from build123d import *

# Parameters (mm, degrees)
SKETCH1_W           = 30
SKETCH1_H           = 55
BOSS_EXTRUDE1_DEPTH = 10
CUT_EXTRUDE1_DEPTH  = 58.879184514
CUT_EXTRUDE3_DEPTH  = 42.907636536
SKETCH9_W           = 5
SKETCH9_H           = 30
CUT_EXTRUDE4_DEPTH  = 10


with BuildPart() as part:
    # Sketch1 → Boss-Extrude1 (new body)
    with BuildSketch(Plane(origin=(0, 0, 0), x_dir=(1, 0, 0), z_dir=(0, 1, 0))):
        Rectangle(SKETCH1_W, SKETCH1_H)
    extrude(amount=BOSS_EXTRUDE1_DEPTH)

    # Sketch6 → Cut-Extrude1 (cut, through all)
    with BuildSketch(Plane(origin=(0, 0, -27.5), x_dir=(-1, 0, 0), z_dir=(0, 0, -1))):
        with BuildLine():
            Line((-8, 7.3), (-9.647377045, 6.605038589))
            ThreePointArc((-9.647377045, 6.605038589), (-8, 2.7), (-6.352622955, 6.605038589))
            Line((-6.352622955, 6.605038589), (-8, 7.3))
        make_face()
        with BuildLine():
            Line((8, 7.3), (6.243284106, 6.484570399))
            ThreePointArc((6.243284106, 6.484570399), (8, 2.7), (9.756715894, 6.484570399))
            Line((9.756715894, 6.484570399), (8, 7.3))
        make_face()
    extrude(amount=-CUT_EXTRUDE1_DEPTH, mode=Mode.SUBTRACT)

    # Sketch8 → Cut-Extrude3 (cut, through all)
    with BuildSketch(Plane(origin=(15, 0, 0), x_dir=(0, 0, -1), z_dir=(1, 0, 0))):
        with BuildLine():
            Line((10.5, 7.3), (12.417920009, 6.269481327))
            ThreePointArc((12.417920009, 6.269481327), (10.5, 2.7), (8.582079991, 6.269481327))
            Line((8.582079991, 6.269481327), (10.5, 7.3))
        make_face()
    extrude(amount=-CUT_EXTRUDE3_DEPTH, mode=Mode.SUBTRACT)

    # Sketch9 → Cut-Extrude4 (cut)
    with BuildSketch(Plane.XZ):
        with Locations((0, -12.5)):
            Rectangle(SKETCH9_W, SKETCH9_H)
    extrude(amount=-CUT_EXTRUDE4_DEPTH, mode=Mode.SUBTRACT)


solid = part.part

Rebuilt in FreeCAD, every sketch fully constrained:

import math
import FreeCAD as App
import Part
import Sketcher

V = App.Vector
Q = App.Units.Quantity


def add_polygon(sketch, points):
    """Adds a closed chain of lines whose ends are joined by coincident constraints."""
    first, n = sketch.GeometryCount, len(points)
    for a, b in zip(points, points[1:] + points[:1]):
        sketch.addGeometry(Part.LineSegment(App.Vector(*a, 0), App.Vector(*b, 0)), False)
    for i in range(n):
        sketch.addConstraint(Sketcher.Constraint("Coincident", first + i, 2, first + (i + 1) % n, 1))

doc = App.newDocument("Part")
body = doc.addObject("PartDesign::Body", "Body")

# Sketch on XZ plane
sketch1 = body.newObject("Sketcher::SketchObject", "Sketch")
sketch1.AttachmentSupport = (doc.getObject("XZ_Plane"), [""])
sketch1.MapMode = "FlatFace"
add_polygon(sketch1, [(-15, -27.5), (-15, 27.5), (15, 27.5), (15, -27.5)])  # lines 0-3
sketch1.addConstraint(Sketcher.Constraint("Vertical", 0))
sketch1.addConstraint(Sketcher.Constraint("Horizontal", 1))
sketch1.addConstraint(Sketcher.Constraint("Vertical", 2))
sketch1.addConstraint(Sketcher.Constraint("Horizontal", 3))
sketch1.addConstraint(Sketcher.Constraint("Symmetric", 0, 2, 2, 2, -1, 1))
sketch1.addConstraint(Sketcher.Constraint("DistanceX", 1, 1, 1, 2, Q("30 mm")))
sketch1.addConstraint(Sketcher.Constraint("DistanceY", 0, 1, 0, 2, Q("55 mm")))
pad1 = body.newObject("PartDesign::Pad", "Pad")
pad1.Profile = sketch1
pad1.Length = 10
pad1.Reversed = True

# Sketch on XY plane
sketch2 = body.newObject("Sketcher::SketchObject", "Sketch001")
sketch2.AttachmentSupport = (doc.getObject("XY_Plane"), [""])
sketch2.MapMode = "FlatFace"
sketch2.AttachmentOffset = App.Placement(V(0, 0, -27.5), App.Rotation())
sketch2.addGeometry(Part.LineSegment(V(8, 7.3, 0), V(9.647377, 6.605039, 0)), False)
sketch2.addGeometry(Part.ArcOfCircle(Part.Circle(V(8, 5, 0), V(0, 0, 1), 2.3), math.radians(135.745808), math.radians(404.254192)), False)
sketch2.addGeometry(Part.LineSegment(V(6.352623, 6.605039, 0), V(8, 7.3, 0)), False)
sketch2.addGeometry(Part.LineSegment(V(-8, 7.3, 0), V(-6.243284, 6.48457, 0)), False)
sketch2.addGeometry(Part.ArcOfCircle(Part.Circle(V(-8, 5, 0), V(0, 0, 1), 2.3), math.radians(139.799422), math.radians(400.200578)), False)
sketch2.addGeometry(Part.LineSegment(V(-9.756716, 6.48457, 0), V(-8, 7.3, 0)), False)
sketch2.addConstraint(Sketcher.Constraint("Coincident", 0, 2, 1, 2))
sketch2.addConstraint(Sketcher.Constraint("Coincident", 1, 1, 2, 1))
sketch2.addConstraint(Sketcher.Constraint("Coincident", 2, 2, 0, 1))
sketch2.addConstraint(Sketcher.Constraint("Coincident", 3, 2, 4, 2))
sketch2.addConstraint(Sketcher.Constraint("Coincident", 4, 1, 5, 1))
sketch2.addConstraint(Sketcher.Constraint("Coincident", 5, 2, 3, 1))
sketch2.addConstraint(Sketcher.Constraint("Equal", 1, 4))
sketch2.addConstraint(Sketcher.Constraint("Symmetric", 1, 3, 4, 3, -2))
sketch2.addConstraint(Sketcher.Constraint("Symmetric", 2, 2, 5, 2, -2))
sketch2.addConstraint(Sketcher.Constraint("Horizontal", 0, 2, 1, 1))
sketch2.addConstraint(Sketcher.Constraint("Horizontal", 3, 2, 4, 1))
sketch2.addConstraint(Sketcher.Constraint("Vertical", 1, 3, 2, 2))
sketch2.addConstraint(Sketcher.Constraint("Radius", 1, Q("2.3 mm")))
sketch2.addConstraint(Sketcher.Constraint("DistanceX", -1, 1, 1, 3, Q("8 mm")))
sketch2.addConstraint(Sketcher.Constraint("DistanceY", -1, 1, 1, 3, Q("5 mm")))
sketch2.addConstraint(Sketcher.Constraint("DistanceY", -1, 1, 2, 2, Q("7.3 mm")))
sketch2.addConstraint(Sketcher.Constraint("DistanceY", -1, 1, 0, 2, Q("6.605039 mm")))
sketch2.addConstraint(Sketcher.Constraint("DistanceY", -1, 1, 3, 2, Q("6.48457 mm")))
pocket1 = body.newObject("PartDesign::Pocket", "Pocket")
pocket1.Profile = sketch2
pocket1.Type = "ThroughAll"
pocket1.Reversed = True

# Sketch on YZ plane
sketch3 = body.newObject("Sketcher::SketchObject", "Sketch002")
sketch3.AttachmentSupport = (doc.getObject("YZ_Plane"), [""])
sketch3.MapMode = "FlatFace"
sketch3.AttachmentOffset = App.Placement(V(0, 0, 15), App.Rotation())
sketch3.addGeometry(Part.LineSegment(V(6.269481, -12.41792, 0), V(7.3, -10.5, 0)), False)
sketch3.addGeometry(Part.LineSegment(V(7.3, -10.5, 0), V(6.269481, -8.58208, 0)), False)
sketch3.addGeometry(Part.ArcOfCircle(Part.Circle(V(5, -10.5, 0), V(0, 0, 1), 2.3), math.radians(56.499215), math.radians(303.500785)), False)
sketch3.addConstraint(Sketcher.Constraint("Coincident", 0, 2, 1, 1))
sketch3.addConstraint(Sketcher.Constraint("Coincident", 1, 2, 2, 1))
sketch3.addConstraint(Sketcher.Constraint("Coincident", 2, 2, 0, 1))
sketch3.addConstraint(Sketcher.Constraint("Horizontal", 2, 3, 0, 2))
sketch3.addConstraint(Sketcher.Constraint("Vertical", 1, 2, 2, 2))
sketch3.addConstraint(Sketcher.Constraint("Radius", 2, Q("2.3 mm")))
sketch3.addConstraint(Sketcher.Constraint("DistanceX", -1, 1, 2, 3, Q("5 mm")))
sketch3.addConstraint(Sketcher.Constraint("DistanceY", 2, 3, -1, 1, Q("10.5 mm")))
sketch3.addConstraint(Sketcher.Constraint("DistanceX", -1, 1, 0, 2, Q("7.3 mm")))
sketch3.addConstraint(Sketcher.Constraint("DistanceX", -1, 1, 1, 2, Q("6.269481 mm")))
pocket2 = body.newObject("PartDesign::Pocket", "Pocket001")
pocket2.Profile = sketch3
pocket2.Type = "ThroughAll"

# Sketch on XZ plane
sketch4 = body.newObject("Sketcher::SketchObject", "Sketch003")
sketch4.AttachmentSupport = (doc.getObject("XZ_Plane"), [""])
sketch4.MapMode = "FlatFace"
add_polygon(sketch4, [(-2.5, 2.5), (-2.5, -27.5), (2.5, -27.5), (2.5, 2.5)])  # lines 0-3
sketch4.addConstraint(Sketcher.Constraint("Vertical", 0))
sketch4.addConstraint(Sketcher.Constraint("Horizontal", 1))
sketch4.addConstraint(Sketcher.Constraint("Vertical", 2))
sketch4.addConstraint(Sketcher.Constraint("Horizontal", 3))
sketch4.addConstraint(Sketcher.Constraint("DistanceX", 1, 1, 1, 2, Q("5 mm")))
sketch4.addConstraint(Sketcher.Constraint("DistanceY", 0, 2, 0, 1, Q("30 mm")))
sketch4.addConstraint(Sketcher.Constraint("DistanceX", 0, 2, -1, 1, Q("2.5 mm")))
sketch4.addConstraint(Sketcher.Constraint("DistanceY", 0, 2, -1, 1, Q("27.5 mm")))
pocket3 = body.newObject("PartDesign::Pocket", "Pocket002")
pocket3.Profile = sketch4
pocket3.Length = 10

doc.recompute()
